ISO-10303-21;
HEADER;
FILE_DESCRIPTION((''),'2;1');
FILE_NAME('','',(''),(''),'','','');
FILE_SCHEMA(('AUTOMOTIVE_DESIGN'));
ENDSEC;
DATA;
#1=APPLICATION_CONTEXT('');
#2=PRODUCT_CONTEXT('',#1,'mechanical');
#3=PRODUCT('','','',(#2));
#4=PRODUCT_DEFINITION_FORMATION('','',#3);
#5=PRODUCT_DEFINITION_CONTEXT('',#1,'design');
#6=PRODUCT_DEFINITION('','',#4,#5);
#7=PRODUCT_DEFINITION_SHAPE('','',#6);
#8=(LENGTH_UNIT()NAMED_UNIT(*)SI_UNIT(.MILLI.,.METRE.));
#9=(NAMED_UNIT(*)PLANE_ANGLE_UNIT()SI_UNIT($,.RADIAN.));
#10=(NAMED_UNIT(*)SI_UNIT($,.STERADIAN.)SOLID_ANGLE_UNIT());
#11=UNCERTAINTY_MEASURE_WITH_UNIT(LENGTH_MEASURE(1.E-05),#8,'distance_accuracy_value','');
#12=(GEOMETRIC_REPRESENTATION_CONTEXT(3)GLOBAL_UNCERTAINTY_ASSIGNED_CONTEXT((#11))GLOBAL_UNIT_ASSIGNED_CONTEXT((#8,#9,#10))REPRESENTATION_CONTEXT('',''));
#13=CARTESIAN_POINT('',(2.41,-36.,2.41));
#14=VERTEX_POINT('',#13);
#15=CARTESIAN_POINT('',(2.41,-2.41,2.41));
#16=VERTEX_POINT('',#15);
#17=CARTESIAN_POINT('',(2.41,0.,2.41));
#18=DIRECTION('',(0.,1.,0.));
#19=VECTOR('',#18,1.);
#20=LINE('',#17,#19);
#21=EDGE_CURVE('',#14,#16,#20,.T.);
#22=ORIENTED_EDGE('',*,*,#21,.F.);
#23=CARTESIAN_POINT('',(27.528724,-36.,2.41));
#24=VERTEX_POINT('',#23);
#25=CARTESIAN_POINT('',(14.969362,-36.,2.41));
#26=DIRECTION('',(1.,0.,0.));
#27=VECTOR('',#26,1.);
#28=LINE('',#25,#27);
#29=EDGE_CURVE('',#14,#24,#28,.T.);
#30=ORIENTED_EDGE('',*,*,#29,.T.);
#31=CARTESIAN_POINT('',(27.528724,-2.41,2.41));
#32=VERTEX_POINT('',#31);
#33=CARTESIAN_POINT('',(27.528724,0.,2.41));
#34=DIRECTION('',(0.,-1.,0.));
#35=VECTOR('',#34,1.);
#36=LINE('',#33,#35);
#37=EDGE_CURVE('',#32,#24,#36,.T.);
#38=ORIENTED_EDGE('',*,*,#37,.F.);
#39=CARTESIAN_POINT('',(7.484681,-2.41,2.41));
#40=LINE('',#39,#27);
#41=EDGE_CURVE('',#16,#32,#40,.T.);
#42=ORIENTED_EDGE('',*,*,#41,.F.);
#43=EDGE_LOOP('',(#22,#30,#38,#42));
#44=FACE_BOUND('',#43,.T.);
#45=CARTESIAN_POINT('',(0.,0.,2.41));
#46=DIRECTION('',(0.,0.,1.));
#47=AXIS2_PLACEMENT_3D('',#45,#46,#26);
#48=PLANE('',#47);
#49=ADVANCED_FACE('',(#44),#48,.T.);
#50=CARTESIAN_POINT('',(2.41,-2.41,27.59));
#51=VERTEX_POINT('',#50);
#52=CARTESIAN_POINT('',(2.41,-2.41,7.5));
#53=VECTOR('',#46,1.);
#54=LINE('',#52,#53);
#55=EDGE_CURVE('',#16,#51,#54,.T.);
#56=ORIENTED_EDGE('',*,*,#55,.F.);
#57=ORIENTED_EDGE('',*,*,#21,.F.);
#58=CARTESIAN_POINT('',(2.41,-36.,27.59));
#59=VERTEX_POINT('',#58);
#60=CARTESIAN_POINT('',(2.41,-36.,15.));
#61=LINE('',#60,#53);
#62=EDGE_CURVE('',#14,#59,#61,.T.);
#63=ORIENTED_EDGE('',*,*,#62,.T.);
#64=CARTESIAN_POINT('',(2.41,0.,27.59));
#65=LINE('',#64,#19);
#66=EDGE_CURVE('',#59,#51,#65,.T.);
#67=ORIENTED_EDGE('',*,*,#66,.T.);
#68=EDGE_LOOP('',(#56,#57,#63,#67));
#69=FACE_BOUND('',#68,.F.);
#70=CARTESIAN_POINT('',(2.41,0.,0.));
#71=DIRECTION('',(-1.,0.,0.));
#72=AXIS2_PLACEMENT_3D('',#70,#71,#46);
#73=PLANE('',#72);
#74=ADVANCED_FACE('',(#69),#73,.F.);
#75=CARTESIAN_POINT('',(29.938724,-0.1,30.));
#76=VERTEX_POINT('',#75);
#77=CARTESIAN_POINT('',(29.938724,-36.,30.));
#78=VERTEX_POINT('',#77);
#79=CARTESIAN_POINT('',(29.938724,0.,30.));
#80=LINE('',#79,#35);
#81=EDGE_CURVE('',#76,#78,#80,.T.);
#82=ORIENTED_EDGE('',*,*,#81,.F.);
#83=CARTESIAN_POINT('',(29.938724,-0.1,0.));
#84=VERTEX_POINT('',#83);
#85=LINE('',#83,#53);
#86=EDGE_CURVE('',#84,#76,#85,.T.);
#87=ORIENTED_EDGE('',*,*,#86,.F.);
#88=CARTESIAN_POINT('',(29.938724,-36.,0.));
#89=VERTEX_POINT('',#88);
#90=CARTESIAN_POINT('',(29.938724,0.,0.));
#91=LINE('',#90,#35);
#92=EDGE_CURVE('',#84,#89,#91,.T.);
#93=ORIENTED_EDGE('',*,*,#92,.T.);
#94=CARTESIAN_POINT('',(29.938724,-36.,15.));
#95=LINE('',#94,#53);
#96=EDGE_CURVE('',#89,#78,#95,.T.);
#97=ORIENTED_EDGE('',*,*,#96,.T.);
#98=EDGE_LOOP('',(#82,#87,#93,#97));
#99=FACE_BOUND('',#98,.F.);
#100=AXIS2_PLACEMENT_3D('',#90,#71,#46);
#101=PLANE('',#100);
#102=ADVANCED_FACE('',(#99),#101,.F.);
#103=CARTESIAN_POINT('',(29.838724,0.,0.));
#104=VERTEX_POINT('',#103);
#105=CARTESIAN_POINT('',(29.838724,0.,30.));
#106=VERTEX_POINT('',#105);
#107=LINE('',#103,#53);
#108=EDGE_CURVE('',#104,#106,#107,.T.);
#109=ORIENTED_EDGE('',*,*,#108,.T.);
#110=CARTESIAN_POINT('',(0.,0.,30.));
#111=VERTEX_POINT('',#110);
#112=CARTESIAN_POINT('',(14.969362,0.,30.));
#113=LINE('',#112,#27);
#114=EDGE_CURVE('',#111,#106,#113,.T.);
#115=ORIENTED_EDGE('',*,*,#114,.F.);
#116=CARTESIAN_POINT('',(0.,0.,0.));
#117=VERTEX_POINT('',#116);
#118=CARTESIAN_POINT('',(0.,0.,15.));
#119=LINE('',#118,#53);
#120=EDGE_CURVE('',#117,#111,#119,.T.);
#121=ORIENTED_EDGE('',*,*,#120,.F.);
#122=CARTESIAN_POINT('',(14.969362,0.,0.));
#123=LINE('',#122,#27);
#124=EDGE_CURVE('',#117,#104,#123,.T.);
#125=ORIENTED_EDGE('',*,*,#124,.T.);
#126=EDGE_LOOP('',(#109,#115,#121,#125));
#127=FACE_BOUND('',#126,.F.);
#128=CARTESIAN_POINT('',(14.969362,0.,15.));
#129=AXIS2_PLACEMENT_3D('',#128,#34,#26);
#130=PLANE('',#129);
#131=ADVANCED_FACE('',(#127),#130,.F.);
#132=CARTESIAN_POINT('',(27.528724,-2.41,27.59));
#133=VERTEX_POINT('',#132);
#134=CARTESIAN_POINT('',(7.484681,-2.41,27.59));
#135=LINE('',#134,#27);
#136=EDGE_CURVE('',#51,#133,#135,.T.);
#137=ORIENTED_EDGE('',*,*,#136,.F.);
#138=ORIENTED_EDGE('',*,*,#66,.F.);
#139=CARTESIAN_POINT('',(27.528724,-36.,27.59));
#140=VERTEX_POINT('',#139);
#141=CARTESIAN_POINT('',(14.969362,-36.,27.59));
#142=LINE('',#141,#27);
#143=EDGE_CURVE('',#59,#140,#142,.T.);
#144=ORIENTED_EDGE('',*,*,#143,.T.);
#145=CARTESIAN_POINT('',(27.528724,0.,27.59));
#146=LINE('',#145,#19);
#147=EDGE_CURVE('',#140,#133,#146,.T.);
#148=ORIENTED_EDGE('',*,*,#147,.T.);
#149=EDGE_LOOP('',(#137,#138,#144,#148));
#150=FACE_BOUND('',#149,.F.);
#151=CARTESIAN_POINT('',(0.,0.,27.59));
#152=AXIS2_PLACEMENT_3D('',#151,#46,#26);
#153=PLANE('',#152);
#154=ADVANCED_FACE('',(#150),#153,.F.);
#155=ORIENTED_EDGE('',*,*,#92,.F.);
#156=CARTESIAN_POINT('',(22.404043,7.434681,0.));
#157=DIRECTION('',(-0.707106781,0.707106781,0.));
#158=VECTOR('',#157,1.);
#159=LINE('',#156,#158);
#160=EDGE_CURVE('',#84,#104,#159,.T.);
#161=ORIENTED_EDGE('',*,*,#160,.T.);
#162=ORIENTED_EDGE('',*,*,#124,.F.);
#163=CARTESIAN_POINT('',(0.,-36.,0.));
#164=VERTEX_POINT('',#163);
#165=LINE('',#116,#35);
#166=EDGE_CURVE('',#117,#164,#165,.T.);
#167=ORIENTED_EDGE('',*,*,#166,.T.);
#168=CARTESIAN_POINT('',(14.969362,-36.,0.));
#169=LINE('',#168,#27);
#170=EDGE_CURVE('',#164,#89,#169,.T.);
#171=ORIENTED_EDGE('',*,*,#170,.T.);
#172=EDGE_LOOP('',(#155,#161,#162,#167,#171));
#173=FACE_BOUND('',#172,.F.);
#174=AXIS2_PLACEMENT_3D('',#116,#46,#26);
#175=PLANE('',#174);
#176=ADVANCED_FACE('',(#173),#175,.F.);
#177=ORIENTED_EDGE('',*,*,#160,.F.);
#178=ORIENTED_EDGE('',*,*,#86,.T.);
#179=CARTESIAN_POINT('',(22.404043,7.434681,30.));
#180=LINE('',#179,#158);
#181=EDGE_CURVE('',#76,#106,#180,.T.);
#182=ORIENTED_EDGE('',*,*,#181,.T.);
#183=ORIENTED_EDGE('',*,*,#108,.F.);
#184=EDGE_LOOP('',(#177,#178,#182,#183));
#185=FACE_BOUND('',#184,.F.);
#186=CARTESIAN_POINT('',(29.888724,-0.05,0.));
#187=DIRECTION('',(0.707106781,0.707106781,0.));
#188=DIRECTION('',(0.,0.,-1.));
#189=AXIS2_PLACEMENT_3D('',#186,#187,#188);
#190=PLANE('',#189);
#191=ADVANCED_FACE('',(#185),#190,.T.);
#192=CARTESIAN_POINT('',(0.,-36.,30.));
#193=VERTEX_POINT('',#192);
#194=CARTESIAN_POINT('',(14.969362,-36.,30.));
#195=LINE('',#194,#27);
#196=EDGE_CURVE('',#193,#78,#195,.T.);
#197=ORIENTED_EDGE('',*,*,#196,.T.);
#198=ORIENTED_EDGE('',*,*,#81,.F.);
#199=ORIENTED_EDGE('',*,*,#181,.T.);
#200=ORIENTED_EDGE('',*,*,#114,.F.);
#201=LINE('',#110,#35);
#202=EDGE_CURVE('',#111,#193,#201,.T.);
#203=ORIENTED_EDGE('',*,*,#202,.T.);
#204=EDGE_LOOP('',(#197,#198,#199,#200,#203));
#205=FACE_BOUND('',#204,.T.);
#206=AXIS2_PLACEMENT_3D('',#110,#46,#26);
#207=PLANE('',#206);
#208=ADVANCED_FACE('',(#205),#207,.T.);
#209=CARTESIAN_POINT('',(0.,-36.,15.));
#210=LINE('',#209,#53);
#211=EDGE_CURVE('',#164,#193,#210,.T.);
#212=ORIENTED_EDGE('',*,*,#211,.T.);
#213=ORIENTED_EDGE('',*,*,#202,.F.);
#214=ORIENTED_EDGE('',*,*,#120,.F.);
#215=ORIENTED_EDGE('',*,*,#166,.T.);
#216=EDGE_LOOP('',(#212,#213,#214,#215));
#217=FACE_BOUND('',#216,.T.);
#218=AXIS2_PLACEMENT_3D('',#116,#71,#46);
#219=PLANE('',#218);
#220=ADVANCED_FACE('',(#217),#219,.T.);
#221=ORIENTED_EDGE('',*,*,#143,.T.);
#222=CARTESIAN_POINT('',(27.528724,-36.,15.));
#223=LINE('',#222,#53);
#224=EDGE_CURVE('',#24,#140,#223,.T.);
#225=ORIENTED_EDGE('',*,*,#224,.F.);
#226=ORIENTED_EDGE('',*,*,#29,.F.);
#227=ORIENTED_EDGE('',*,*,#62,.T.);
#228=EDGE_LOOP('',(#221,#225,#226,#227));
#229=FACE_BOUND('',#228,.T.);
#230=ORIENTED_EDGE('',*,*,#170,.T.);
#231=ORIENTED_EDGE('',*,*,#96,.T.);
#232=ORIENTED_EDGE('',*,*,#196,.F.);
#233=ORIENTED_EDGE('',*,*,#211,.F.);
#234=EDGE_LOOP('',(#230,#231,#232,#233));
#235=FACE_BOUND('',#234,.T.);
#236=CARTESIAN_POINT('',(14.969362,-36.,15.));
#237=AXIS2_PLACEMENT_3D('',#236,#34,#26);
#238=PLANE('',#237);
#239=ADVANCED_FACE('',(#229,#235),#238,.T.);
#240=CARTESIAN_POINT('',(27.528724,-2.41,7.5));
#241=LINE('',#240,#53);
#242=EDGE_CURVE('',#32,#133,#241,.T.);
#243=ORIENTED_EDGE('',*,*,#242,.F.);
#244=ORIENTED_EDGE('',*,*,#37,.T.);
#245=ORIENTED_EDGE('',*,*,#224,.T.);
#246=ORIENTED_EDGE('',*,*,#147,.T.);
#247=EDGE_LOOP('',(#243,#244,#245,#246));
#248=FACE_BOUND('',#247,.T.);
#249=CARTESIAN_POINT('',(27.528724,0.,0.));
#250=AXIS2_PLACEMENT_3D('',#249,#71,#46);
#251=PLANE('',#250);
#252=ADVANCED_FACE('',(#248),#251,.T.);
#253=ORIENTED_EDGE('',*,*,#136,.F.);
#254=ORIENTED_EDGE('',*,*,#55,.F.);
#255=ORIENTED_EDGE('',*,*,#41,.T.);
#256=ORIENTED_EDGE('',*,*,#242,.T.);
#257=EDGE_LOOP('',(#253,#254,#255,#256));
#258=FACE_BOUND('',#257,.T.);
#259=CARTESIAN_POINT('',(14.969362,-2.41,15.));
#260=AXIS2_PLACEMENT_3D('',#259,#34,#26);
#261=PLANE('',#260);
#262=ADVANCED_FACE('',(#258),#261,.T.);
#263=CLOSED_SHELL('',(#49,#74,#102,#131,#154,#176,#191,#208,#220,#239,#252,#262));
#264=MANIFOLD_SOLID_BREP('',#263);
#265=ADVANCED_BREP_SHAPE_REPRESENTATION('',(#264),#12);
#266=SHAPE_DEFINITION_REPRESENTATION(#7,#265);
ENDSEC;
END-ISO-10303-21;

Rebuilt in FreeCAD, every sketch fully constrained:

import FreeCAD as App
import Part
import Sketcher
Q = App.Units.Quantity


def edges_at(feature, points):
    """Names of the edges that pass closest to the given points."""
    edges = feature.Shape.Edges
    near = lambda p: min(range(len(edges)), key=lambda i: edges[i].distToShape(Part.Vertex(*p))[0])
    return sorted({f"Edge{near(p) + 1}" for p in points})


def faces_at(feature, points):
    """Names of the faces that lie closest to the given points."""
    faces = feature.Shape.Faces
    near = lambda p: min(range(len(faces)), key=lambda i: faces[i].distToShape(Part.Vertex(*p))[0])
    return sorted({f"Face{near(p) + 1}" for p in points})

doc = App.newDocument("Part")
body = doc.addObject("PartDesign::Body", "Body")

# Sketch on XZ plane
sketch1 = body.newObject("Sketcher::SketchObject", "Sketch")
sketch1.AttachmentSupport = (doc.getObject("XZ_Plane"), [""])
sketch1.MapMode = "FlatFace"
sketch1.addGeometry(Part.LineSegment(App.Vector(0, 30, 0), App.Vector(0, 0, 0)), False)
sketch1.addGeometry(Part.LineSegment(App.Vector(0, 0, 0), App.Vector(29.938724, 0, 0)), False)
sketch1.addGeometry(Part.LineSegment(App.Vector(29.938724, 0, 0), App.Vector(29.938724, 30, 0)), False)
sketch1.addGeometry(Part.LineSegment(App.Vector(29.938724, 30, 0), App.Vector(0, 30, 0)), False)
sketch1.addConstraint(Sketcher.Constraint("Coincident", 0, 2, 1, 1))
sketch1.addConstraint(Sketcher.Constraint("Coincident", 1, 2, 2, 1))
sketch1.addConstraint(Sketcher.Constraint("Coincident", 2, 2, 3, 1))
sketch1.addConstraint(Sketcher.Constraint("Coincident", 3, 2, 0, 1))
sketch1.addConstraint(Sketcher.Constraint("Vertical", 0))
sketch1.addConstraint(Sketcher.Constraint("Horizontal", 1))
sketch1.addConstraint(Sketcher.Constraint("Vertical", 2))
sketch1.addConstraint(Sketcher.Constraint("Horizontal", 3))
sketch1.addConstraint(Sketcher.Constraint("Coincident", 0, 2, -1, 1))
sketch1.addConstraint(Sketcher.Constraint("DistanceY", 0, 2, 0, 1, Q("30 mm")))
sketch1.addConstraint(Sketcher.Constraint("DistanceX", 1, 1, 1, 2, Q("29.938724 mm")))
pad1 = body.newObject("PartDesign::Pad", "Pad")
pad1.Profile = sketch1
pad1.Length = 36
doc.recompute()

thickness = body.newObject("PartDesign::Thickness", "Thickness")
thickness.Base = (pad1, faces_at(pad1, [(14.969, -36, 15)]))
thickness.Value = 2.41
thickness.Reversed = True
thickness.Join = "Arc"
doc.recompute()

chamfer = body.newObject("PartDesign::Chamfer", "Chamfer")
chamfer.Base = (thickness, edges_at(thickness, [(29.939, 0, 15)]))
chamfer.Size = 0.1

doc.recompute()
